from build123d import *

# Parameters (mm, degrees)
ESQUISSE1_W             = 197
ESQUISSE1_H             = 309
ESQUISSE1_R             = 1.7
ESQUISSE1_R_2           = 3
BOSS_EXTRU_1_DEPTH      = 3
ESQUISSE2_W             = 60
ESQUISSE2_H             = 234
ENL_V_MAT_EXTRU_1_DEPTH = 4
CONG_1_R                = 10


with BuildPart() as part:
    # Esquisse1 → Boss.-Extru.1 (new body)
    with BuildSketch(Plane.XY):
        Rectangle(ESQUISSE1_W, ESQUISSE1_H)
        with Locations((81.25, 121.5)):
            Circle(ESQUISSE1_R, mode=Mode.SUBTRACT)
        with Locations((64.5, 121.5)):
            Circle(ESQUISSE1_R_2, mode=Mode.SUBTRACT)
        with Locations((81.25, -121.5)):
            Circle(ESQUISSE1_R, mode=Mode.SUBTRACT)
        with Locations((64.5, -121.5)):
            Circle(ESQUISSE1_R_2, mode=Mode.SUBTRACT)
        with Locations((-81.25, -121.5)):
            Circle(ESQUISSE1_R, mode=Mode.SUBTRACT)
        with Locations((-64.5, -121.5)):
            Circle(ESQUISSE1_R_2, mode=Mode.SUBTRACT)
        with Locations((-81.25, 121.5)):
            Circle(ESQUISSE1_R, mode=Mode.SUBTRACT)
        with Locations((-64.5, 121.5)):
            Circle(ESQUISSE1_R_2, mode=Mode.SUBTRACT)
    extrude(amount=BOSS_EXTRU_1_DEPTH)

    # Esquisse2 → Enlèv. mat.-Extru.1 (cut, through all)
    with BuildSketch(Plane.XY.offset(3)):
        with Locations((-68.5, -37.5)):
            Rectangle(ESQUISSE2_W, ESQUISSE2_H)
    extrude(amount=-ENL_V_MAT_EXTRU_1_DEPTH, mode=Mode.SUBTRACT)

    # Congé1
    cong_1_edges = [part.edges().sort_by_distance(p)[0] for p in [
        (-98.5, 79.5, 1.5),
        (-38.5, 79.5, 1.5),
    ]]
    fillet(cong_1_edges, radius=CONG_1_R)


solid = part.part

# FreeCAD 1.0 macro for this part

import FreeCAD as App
import Part
import Sketcher

V = App.Vector
Q = App.Units.Quantity


def edges_at(feature, points):
    """Names of the edges that pass closest to the given points."""
    edges = feature.Shape.Edges
    near = lambda p: min(range(len(edges)), key=lambda i: edges[i].distToShape(Part.Vertex(*p))[0])
    return sorted({f"Edge{near(p) + 1}" for p in points})


def add_polygon(sketch, points):
    """Adds a closed chain of lines whose ends are joined by coincident constraints."""
    first, n = sketch.GeometryCount, len(points)
    for a, b in zip(points, points[1:] + points[:1]):
        sketch.addGeometry(Part.LineSegment(App.Vector(*a, 0), App.Vector(*b, 0)), False)
    for i in range(n):
        sketch.addConstraint(Sketcher.Constraint("Coincident", first + i, 2, first + (i + 1) % n, 1))

doc = App.newDocument("Part")
body = doc.addObject("PartDesign::Body", "Body")

# Sketch on XY plane
sketch1 = doc.addObject("Sketcher::SketchObject", "Sketch")
body.addObject(sketch1)
sketch1.AttachmentSupport = (doc.XY_Plane, [""])
sketch1.MapMode = "FlatFace"
add_polygon(sketch1, [(-98.5, 154.5), (-98.5, -154.5), (98.5, -154.5), (98.5, 154.5)])  # lines 0-3
sketch1.addGeometry(Part.Circle(V(-81.2, -121.5, 0), V(0, 0, 1), 1.7), False)  # 4
sketch1.addGeometry(Part.Circle(V(-64.5, -121.5, 0), V(0, 0, 1), 3), False)  # 5
sketch1.addGeometry(Part.Circle(V(64.5, -121.5, 0), V(0, 0, 1), 3), False)  # 6
sketch1.addGeometry(Part.Circle(V(81.2, -121.5, 0), V(0, 0, 1), 1.7), False)  # 7
sketch1.addGeometry(Part.Circle(V(-81.2, 121.5, 0), V(0, 0, 1), 1.7), False)  # 8
sketch1.addGeometry(Part.Circle(V(-64.5, 121.5, 0), V(0, 0, 1), 3), False)  # 9
sketch1.addGeometry(Part.Circle(V(64.5, 121.5, 0), V(0, 0, 1), 3), False)  # 10
sketch1.addGeometry(Part.Circle(V(81.2, 121.5, 0), V(0, 0, 1), 1.7), False)  # 11
sketch1.addConstraint(Sketcher.Constraint("Vertical", 0))
sketch1.addConstraint(Sketcher.Constraint("Horizontal", 1))
sketch1.addConstraint(Sketcher.Constraint("Vertical", 2))
sketch1.addConstraint(Sketcher.Constraint("Horizontal", 3))
sketch1.addConstraint(Sketcher.Constraint("Equal", 5, 6))
sketch1.addConstraint(Sketcher.Constraint("Equal", 4, 7))
sketch1.addConstraint(Sketcher.Constraint("Equal", 7, 8))
sketch1.addConstraint(Sketcher.Constraint("Equal", 6, 9))
sketch1.addConstraint(Sketcher.Constraint("Equal", 9, 10))
sketch1.addConstraint(Sketcher.Constraint("Equal", 8, 11))
sketch1.addConstraint(Sketcher.Constraint("Symmetric", 7, 3, 8, 3, -1, 1))
sketch1.addConstraint(Sketcher.Constraint("Symmetric", 6, 3, 9, 3, -1, 1))
sketch1.addConstraint(Sketcher.Constraint("Symmetric", 5, 3, 10, 3, -1, 1))
sketch1.addConstraint(Sketcher.Constraint("Symmetric", 4, 3, 11, 3, -1, 1))
sketch1.addConstraint(Sketcher.Constraint("Symmetric", 0, 2, 2, 2, -1, 1))
sketch1.addConstraint(Sketcher.Constraint("Symmetric", 5, 3, 6, 3, -2))
sketch1.addConstraint(Sketcher.Constraint("Symmetric", 4, 3, 7, 3, -2))
sketch1.addConstraint(Sketcher.Constraint("Horizontal", 4, 3, 5, 3))
sketch1.addConstraint(Sketcher.Constraint("Diameter", 5, Q("6 mm")))
sketch1.addConstraint(Sketcher.Constraint("Diameter", 4, Q("3.4 mm")))
sketch1.addConstraint(Sketcher.Constraint("DistanceX", 1, 1, 1, 2, Q("197 mm")))
sketch1.addConstraint(Sketcher.Constraint("DistanceY", 0, 2, 0, 1, Q("309 mm")))
sketch1.addConstraint(Sketcher.Constraint("DistanceX", 5, 3, 6, 3, Q("129 mm")))
sketch1.addConstraint(Sketcher.Constraint("DistanceY", 4, 3, 8, 3, Q("243 mm")))
sketch1.addConstraint(Sketcher.Constraint("DistanceX", 4, 3, 7, 3, Q("162.5 mm")))
pad1 = doc.addObject("PartDesign::Pad", "Pad")
body.addObject(pad1)
pad1.Profile = sketch1
pad1.Length = 3

# Sketch on XY plane
sketch2 = doc.addObject("Sketcher::SketchObject", "Sketch001")
body.addObject(sketch2)
sketch2.AttachmentSupport = (doc.XY_Plane, [""])
sketch2.MapMode = "FlatFace"
sketch2.AttachmentOffset = App.Placement(V(0, 0, 3), App.Rotation())
add_polygon(sketch2, [(-98, 80), (-98, -154), (-38, -154), (-38, 80)])  # lines 0-3
sketch2.addConstraint(Sketcher.Constraint("Vertical", 0))
sketch2.addConstraint(Sketcher.Constraint("Horizontal", 1))
sketch2.addConstraint(Sketcher.Constraint("Vertical", 2))
sketch2.addConstraint(Sketcher.Constraint("Horizontal", 3))
sketch2.addConstraint(Sketcher.Constraint("DistanceX", 1, 1, 1, 2, Q("60 mm")))
sketch2.addConstraint(Sketcher.Constraint("DistanceY", 0, 2, 0, 1, Q("234 mm")))
sketch2.addConstraint(Sketcher.Constraint("DistanceX", 0, 2, -1, 1, Q("98.5 mm")))
sketch2.addConstraint(Sketcher.Constraint("DistanceY", 0, 2, -1, 1, Q("154.5 mm")))
pocket1 = doc.addObject("PartDesign::Pocket", "Pocket")
body.addObject(pocket1)
pocket1.Profile = sketch2
pocket1.Type = "ThroughAll"
doc.recompute()

fillet = doc.addObject("PartDesign::Fillet", "Fillet")
body.addObject(fillet)
fillet.Base = (pocket1, edges_at(pocket1, [(-98.5, 79.5, 1.5), (-38.5, 79.5, 1.5)]))
fillet.Radius = 10

doc.recompute()
